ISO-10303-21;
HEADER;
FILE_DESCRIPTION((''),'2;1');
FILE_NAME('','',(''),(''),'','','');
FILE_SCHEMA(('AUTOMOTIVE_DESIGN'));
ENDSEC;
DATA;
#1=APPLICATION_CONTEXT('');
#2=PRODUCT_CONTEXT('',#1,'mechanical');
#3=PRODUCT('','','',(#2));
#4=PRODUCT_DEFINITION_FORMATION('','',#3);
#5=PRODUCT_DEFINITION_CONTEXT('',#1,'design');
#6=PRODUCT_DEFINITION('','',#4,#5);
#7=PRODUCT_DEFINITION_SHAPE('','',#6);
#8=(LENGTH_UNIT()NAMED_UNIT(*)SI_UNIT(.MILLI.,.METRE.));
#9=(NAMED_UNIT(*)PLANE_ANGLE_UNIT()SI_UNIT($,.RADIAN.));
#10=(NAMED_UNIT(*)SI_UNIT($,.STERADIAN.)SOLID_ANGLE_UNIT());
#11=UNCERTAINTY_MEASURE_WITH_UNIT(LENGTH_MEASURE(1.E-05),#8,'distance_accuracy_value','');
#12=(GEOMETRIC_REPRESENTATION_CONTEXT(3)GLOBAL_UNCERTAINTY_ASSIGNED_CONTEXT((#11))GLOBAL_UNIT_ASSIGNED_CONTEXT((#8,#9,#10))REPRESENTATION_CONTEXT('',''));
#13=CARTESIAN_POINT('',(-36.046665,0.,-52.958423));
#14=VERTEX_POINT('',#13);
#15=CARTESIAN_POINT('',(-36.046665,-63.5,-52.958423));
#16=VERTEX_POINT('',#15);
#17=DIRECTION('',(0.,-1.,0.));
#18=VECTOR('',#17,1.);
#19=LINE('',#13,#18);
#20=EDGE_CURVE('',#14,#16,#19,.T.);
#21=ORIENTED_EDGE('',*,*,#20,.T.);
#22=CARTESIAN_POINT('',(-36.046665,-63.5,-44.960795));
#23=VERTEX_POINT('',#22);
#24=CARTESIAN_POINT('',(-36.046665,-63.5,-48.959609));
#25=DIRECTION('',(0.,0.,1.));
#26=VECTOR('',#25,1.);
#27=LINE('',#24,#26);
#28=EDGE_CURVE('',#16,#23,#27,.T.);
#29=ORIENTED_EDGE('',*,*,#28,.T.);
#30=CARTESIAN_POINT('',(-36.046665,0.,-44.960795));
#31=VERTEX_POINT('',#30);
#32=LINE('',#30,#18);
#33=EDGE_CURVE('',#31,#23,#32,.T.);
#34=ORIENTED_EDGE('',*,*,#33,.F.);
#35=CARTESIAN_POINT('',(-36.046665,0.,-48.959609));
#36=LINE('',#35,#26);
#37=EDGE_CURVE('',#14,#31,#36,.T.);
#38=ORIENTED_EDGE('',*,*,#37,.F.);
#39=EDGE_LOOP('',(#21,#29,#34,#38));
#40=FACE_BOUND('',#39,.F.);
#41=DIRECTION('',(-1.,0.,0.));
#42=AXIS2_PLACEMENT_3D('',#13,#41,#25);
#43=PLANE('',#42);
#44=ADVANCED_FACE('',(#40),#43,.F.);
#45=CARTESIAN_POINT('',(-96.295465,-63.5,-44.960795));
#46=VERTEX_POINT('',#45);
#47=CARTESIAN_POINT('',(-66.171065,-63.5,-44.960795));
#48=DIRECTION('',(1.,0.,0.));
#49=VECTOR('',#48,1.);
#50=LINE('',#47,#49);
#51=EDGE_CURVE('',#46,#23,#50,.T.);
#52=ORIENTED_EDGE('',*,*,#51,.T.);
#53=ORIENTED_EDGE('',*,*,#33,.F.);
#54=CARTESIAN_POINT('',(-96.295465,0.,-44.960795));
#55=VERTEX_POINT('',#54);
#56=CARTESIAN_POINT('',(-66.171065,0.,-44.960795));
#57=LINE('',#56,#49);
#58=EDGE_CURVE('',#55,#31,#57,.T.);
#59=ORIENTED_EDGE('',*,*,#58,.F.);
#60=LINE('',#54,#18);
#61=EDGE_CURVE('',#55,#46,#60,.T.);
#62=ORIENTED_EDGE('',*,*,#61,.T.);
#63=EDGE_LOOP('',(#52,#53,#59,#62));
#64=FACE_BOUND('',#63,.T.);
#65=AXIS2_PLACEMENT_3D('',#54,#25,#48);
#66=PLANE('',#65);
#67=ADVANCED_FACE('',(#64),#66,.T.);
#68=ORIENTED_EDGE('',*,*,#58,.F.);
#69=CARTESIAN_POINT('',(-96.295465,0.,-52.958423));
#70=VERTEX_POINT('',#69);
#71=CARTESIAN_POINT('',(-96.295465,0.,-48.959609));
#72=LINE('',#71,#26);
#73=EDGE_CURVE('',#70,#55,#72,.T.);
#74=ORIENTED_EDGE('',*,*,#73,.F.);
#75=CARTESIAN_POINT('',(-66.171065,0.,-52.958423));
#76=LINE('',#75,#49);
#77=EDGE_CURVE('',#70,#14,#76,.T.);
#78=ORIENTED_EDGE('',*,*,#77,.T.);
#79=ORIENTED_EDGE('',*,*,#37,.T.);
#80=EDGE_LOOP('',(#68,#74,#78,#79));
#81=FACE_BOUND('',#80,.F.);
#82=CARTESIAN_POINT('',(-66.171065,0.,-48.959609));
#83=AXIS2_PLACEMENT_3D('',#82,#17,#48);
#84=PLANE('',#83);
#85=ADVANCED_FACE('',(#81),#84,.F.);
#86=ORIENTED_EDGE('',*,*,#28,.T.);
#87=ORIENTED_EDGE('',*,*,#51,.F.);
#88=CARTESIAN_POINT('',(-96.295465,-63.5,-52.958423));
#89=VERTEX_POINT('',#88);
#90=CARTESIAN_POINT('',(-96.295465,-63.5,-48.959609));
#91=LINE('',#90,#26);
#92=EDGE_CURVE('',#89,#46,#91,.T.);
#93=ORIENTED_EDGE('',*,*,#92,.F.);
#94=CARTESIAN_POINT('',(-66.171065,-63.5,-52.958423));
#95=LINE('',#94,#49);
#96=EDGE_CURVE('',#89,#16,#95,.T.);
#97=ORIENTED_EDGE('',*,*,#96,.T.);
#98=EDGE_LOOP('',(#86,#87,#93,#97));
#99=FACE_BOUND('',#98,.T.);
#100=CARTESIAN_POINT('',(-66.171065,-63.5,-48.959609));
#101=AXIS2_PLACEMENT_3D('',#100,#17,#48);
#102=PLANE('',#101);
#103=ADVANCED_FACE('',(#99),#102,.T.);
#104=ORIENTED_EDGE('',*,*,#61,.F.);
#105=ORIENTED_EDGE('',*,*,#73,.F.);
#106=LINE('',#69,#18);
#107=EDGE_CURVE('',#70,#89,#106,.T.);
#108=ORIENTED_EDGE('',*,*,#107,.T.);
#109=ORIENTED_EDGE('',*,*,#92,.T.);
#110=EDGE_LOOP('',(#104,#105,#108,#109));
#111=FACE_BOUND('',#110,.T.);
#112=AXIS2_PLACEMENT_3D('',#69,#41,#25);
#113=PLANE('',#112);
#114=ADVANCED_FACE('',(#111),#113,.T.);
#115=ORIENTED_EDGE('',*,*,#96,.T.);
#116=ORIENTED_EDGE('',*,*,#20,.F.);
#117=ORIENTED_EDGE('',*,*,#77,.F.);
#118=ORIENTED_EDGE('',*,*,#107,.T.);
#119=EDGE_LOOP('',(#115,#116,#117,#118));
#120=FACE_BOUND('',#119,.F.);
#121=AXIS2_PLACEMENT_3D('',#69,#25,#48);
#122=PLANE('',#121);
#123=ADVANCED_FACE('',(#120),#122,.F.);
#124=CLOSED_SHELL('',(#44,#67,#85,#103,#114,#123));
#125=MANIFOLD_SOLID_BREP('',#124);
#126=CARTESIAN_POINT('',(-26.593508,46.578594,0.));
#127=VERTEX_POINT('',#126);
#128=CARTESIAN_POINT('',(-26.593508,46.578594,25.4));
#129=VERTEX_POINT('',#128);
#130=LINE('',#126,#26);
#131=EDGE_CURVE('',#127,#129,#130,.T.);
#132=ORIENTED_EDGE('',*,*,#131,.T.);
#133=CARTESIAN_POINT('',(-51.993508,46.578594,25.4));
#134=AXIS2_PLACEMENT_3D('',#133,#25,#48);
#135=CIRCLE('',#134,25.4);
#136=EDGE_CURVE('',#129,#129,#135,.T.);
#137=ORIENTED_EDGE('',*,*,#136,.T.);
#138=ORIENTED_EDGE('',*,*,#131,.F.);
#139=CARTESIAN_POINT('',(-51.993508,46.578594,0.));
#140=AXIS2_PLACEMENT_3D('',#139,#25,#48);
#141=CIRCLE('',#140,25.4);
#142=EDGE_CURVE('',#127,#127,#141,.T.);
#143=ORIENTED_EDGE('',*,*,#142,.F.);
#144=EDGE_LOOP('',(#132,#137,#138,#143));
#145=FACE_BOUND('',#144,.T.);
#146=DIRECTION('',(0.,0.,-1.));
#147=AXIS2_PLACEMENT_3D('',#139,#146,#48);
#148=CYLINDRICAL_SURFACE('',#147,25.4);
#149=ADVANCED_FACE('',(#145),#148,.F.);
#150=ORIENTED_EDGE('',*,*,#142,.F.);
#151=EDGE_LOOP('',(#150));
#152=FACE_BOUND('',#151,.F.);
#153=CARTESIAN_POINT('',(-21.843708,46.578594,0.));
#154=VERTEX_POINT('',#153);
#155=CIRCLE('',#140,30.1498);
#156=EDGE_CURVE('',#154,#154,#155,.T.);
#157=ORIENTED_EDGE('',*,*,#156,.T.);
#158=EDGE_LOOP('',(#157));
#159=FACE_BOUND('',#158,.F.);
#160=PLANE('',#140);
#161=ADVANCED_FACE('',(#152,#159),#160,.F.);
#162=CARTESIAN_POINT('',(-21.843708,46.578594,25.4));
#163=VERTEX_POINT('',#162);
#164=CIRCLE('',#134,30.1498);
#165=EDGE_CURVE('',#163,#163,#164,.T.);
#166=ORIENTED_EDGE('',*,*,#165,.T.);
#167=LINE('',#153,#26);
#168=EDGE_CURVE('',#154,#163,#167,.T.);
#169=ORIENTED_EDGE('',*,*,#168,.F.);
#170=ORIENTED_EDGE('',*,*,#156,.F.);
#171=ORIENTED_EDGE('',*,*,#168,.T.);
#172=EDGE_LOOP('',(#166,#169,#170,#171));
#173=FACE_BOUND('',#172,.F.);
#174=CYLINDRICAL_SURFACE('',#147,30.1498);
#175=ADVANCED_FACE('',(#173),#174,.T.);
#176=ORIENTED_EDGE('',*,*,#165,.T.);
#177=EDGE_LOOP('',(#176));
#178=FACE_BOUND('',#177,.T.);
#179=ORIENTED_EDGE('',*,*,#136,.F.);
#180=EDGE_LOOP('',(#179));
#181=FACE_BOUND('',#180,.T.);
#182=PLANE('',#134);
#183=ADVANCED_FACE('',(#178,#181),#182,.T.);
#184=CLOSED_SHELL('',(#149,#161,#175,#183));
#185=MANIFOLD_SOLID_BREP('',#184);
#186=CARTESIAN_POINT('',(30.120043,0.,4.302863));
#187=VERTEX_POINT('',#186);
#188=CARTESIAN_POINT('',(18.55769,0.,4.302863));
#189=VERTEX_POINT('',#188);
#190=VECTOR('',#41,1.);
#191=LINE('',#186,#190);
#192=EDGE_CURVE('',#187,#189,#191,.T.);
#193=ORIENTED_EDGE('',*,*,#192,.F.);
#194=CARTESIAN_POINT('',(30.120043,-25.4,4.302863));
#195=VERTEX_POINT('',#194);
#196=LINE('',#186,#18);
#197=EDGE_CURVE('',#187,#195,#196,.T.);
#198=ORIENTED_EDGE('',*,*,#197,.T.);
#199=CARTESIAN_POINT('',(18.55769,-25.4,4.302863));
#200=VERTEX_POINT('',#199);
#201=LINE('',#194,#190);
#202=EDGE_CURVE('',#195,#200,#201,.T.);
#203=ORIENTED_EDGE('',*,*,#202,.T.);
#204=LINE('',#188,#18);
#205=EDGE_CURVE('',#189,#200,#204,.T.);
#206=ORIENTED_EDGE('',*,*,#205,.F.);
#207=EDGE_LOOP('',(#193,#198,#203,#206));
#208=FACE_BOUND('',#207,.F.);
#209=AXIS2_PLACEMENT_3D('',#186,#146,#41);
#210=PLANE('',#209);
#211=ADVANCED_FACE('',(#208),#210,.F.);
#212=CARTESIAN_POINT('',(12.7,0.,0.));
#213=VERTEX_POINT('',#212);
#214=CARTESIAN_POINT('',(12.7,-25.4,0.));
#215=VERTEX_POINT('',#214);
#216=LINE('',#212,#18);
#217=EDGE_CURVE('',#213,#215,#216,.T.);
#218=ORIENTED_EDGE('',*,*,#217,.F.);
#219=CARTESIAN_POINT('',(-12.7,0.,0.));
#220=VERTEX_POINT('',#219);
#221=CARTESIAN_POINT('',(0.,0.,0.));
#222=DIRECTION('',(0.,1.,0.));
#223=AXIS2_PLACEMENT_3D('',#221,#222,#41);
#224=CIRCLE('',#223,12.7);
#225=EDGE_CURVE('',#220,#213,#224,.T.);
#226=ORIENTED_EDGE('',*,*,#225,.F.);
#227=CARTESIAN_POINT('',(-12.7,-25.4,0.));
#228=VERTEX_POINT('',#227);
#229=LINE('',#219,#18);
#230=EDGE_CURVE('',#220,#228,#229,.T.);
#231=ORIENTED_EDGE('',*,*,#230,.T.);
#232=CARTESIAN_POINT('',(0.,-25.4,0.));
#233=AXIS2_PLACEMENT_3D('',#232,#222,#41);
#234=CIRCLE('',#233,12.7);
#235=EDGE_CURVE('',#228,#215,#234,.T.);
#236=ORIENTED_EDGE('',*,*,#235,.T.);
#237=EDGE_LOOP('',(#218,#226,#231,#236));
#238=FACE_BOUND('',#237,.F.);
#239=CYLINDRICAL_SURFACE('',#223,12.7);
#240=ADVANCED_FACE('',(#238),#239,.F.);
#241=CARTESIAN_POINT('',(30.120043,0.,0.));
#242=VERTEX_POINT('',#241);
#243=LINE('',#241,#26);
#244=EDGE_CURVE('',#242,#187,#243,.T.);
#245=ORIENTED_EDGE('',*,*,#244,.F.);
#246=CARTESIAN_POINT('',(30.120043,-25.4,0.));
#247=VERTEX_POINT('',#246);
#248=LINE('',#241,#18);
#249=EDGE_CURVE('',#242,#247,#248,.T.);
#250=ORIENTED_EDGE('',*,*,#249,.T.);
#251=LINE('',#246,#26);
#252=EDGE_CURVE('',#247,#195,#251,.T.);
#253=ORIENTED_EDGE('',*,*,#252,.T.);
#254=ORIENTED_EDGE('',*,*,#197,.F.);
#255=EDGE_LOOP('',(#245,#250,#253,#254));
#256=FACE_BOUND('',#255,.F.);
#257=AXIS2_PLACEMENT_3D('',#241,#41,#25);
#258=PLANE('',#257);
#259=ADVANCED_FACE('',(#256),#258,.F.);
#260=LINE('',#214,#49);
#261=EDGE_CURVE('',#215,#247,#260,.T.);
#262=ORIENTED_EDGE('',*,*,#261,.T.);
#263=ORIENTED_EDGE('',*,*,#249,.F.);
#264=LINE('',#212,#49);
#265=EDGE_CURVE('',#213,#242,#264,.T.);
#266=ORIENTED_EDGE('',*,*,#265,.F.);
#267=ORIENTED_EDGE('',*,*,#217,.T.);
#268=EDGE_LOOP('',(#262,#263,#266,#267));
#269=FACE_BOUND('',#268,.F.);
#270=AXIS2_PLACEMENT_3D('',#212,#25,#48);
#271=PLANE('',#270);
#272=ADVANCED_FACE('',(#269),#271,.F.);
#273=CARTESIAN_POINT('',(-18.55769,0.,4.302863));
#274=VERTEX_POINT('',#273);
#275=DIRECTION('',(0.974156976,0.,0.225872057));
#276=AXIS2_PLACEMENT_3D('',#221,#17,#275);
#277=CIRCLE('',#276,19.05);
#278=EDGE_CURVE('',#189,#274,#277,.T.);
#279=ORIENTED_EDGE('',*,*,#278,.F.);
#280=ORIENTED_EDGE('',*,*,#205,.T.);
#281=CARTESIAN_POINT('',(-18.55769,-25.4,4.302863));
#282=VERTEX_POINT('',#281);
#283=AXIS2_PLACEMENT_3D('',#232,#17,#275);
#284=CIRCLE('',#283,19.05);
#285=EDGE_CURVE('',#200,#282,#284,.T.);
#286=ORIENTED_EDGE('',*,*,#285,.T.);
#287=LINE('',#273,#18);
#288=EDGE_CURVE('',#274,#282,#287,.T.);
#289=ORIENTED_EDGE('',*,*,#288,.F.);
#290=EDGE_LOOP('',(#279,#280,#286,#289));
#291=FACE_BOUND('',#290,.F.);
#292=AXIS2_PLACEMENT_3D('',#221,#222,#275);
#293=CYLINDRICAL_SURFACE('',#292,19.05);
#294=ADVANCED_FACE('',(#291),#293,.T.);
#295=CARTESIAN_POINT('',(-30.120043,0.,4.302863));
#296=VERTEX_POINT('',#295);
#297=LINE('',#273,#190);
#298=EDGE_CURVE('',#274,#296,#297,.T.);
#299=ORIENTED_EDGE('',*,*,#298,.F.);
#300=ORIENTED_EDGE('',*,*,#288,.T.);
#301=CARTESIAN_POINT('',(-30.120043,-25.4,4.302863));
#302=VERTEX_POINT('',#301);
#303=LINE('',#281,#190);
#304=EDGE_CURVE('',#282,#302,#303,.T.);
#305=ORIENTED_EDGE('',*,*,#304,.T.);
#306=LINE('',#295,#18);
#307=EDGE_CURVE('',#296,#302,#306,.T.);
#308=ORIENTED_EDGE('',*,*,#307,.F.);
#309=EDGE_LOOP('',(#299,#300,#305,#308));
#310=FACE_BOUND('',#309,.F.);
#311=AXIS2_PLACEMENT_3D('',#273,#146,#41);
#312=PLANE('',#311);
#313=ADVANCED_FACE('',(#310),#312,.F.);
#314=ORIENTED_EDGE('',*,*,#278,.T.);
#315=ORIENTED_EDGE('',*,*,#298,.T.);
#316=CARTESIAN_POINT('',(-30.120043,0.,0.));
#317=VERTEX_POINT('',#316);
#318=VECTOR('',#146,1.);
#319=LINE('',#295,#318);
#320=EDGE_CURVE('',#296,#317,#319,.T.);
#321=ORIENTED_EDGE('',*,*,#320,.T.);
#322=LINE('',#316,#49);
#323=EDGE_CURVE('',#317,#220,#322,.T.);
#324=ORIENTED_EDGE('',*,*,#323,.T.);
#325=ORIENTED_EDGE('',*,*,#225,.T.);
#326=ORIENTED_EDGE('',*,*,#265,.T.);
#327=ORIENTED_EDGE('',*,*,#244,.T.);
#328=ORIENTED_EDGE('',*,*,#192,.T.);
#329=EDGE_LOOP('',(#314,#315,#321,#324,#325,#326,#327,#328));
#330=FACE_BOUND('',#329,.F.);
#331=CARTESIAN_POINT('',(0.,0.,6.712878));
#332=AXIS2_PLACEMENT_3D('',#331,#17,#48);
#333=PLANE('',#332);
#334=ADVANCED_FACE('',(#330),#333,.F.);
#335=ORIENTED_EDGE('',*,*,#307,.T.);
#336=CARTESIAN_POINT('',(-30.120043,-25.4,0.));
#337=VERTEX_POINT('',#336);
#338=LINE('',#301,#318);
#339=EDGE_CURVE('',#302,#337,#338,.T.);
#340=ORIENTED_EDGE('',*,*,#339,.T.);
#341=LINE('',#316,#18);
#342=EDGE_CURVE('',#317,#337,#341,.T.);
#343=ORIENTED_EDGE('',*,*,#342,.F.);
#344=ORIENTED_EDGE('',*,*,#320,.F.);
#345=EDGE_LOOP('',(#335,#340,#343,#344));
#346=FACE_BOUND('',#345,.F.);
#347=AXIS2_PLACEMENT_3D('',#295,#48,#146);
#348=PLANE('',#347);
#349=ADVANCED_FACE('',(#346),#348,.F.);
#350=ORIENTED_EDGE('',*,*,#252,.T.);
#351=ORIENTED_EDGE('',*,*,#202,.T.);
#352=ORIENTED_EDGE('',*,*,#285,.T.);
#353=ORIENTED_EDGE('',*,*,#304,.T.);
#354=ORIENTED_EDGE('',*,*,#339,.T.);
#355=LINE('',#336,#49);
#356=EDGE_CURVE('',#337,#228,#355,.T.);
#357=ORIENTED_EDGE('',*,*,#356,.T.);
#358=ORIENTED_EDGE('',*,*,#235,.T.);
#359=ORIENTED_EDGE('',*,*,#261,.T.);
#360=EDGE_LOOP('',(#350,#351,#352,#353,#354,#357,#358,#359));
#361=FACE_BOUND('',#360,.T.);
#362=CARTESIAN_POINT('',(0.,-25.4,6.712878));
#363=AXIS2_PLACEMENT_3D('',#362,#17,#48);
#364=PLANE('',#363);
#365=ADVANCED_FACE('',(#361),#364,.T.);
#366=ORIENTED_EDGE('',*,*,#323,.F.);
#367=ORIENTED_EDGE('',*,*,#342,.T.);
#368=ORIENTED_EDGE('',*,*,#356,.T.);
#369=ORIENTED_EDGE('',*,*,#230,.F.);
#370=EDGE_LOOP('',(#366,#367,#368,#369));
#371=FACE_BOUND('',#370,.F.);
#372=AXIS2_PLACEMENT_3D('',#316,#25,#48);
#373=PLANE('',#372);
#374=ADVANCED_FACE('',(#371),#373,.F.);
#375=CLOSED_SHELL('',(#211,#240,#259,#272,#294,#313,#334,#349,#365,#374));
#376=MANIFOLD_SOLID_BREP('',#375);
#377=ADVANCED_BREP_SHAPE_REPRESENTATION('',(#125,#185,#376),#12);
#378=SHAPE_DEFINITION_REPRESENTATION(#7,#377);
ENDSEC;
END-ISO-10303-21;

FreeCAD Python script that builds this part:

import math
import FreeCAD as App
import Part
import Sketcher
Q = App.Units.Quantity


def add_polygon(sketch, points):
    """Adds a closed chain of lines whose ends are joined by coincident constraints."""
    first, n = sketch.GeometryCount, len(points)
    for a, b in zip(points, points[1:] + points[:1]):
        sketch.addGeometry(Part.LineSegment(App.Vector(*a, 0), App.Vector(*b, 0)), False)
    for i in range(n):
        sketch.addConstraint(Sketcher.Constraint("Coincident", first + i, 2, first + (i + 1) % n, 1))

doc = App.newDocument("Part")
body = doc.addObject("PartDesign::Body", "Body")

# Sketch on XZ plane
sketch1 = doc.addObject("Sketcher::SketchObject", "Sketch")
body.addObject(sketch1)
sketch1.AttachmentSupport = (doc.XZ_Plane, [""])
sketch1.MapMode = "FlatFace"
sketch1.addGeometry([
    Part.ArcOfCircle(Part.Circle(App.Vector(0, 0, 0), App.Vector(0, 0, 1), 12.7), math.radians(0), math.radians(180)),  # 0
    Part.LineSegment(App.Vector(12.7, 0, 0), App.Vector(30.1, 0, 0)),  # 1
    Part.LineSegment(App.Vector(30.1, 0, 0), App.Vector(30.1, 4.3, 0)),  # 2
    Part.LineSegment(App.Vector(30.1, 4.3, 0), App.Vector(18.6, 4.3, 0)),  # 3
    Part.ArcOfCircle(Part.Circle(App.Vector(0, 0, 0), App.Vector(0, 0, 1), 19), math.radians(13), math.radians(167)),  # 4
    Part.LineSegment(App.Vector(-18.6, 4.3, 0), App.Vector(-30.1, 4.3, 0)),  # 5
    Part.LineSegment(App.Vector(-30.1, 4.3, 0), App.Vector(-30.1, 0, 0)),  # 6
    Part.LineSegment(App.Vector(-30.1, 0, 0), App.Vector(-12.7, 0, 0)),  # 7
], False)
sketch1.addConstraint([
    Sketcher.Constraint("Coincident", 0, 1, 1, 1),
    Sketcher.Constraint("Coincident", 1, 2, 2, 1),
    Sketcher.Constraint("Coincident", 2, 2, 3, 1),
    Sketcher.Constraint("Coincident", 3, 2, 4, 1),
    Sketcher.Constraint("Coincident", 4, 2, 5, 1),
    Sketcher.Constraint("Coincident", 5, 2, 6, 1),
    Sketcher.Constraint("Coincident", 6, 2, 7, 1),
    Sketcher.Constraint("Coincident", 7, 2, 0, 2),
    Sketcher.Constraint("Horizontal", 1),
    Sketcher.Constraint("Vertical", 2),
    Sketcher.Constraint("Horizontal", 3),
    Sketcher.Constraint("Horizontal", 5),
    Sketcher.Constraint("Vertical", 6),
    Sketcher.Constraint("Horizontal", 7),
    Sketcher.Constraint("Coincident", 0, 3, -1, 1),
    Sketcher.Constraint("Coincident", 4, 3, -1, 1),
    Sketcher.Constraint("Symmetric", 1, 2, 6, 2, -1, 1),
    Sketcher.Constraint("PointOnObject", 0, 1, -1),
    Sketcher.Constraint("Horizontal", 3, 2, 4, 2),
    Sketcher.Constraint("Radius", 0, Q("0.5 in")),
    Sketcher.Constraint("Radius", 4, Q("0.75 in")),
    Sketcher.Constraint("DistanceX", 1, 1, 1, 2, Q("17.420043 mm")),
    Sketcher.Constraint("DistanceX", 3, 2, 3, 1, Q("11.562353 mm")),
])
pad1 = doc.addObject("PartDesign::Pad", "Pad")
body.addObject(pad1)
pad1.Profile = sketch1
pad1.Length = Q("1 in")
body2 = doc.addObject("PartDesign::Body", "Body001")

# Sketch on XZ plane
sketch2 = doc.addObject("Sketcher::SketchObject", "Sketch001")
body2.addObject(sketch2)
sketch2.AttachmentSupport = (doc.getObject("XZ_Plane001"), [""])
sketch2.MapMode = "FlatFace"
add_polygon(sketch2, [(-96, -45), (-96, -53), (-36, -53), (-36, -45)])  # lines 0-3
sketch2.addConstraint([
    Sketcher.Constraint("Vertical", 0),
    Sketcher.Constraint("Horizontal", 1),
    Sketcher.Constraint("Vertical", 2),
    Sketcher.Constraint("Horizontal", 3),
    Sketcher.Constraint("DistanceX", 1, 1, 1, 2, Q("2.372 in")),
    Sketcher.Constraint("DistanceY", 0, 2, 0, 1, Q("7.997628 mm")),
    Sketcher.Constraint("DistanceX", 0, 2, -1, 1, Q("96.295465 mm")),
    Sketcher.Constraint("DistanceY", 0, 2, -1, 1, Q("52.958423 mm")),
])
pad2 = doc.addObject("PartDesign::Pad", "Pad001")
body2.addObject(pad2)
pad2.Profile = sketch2
pad2.Length = Q("2.5 in")
body3 = doc.addObject("PartDesign::Body", "Body002")

# Sketch on XY plane
sketch3 = doc.addObject("Sketcher::SketchObject", "Sketch002")
body3.addObject(sketch3)
sketch3.AttachmentSupport = (doc.getObject("XY_Plane002"), [""])
sketch3.MapMode = "FlatFace"
sketch3.addGeometry([
    Part.Circle(App.Vector(-52, 47, 0), App.Vector(0, 0, 1), 30),
    Part.Circle(App.Vector(-52, 47, 0), App.Vector(0, 0, 1), 25),
], False)
sketch3.addConstraint([
    Sketcher.Constraint("Coincident", 1, 3, 0, 3),
    Sketcher.Constraint("Diameter", 1, Q("2 in")),
    Sketcher.Constraint("Diameter", 0, Q("2.374 in")),
    Sketcher.Constraint("DistanceX", 0, 3, -1, 1, Q("51.993508 mm")),
    Sketcher.Constraint("DistanceY", -1, 1, 0, 3, Q("46.578594 mm")),
])
pad3 = doc.addObject("PartDesign::Pad", "Pad002")
body3.addObject(pad3)
pad3.Profile = sketch3
pad3.Length = Q("1 in")

doc.recompute()
